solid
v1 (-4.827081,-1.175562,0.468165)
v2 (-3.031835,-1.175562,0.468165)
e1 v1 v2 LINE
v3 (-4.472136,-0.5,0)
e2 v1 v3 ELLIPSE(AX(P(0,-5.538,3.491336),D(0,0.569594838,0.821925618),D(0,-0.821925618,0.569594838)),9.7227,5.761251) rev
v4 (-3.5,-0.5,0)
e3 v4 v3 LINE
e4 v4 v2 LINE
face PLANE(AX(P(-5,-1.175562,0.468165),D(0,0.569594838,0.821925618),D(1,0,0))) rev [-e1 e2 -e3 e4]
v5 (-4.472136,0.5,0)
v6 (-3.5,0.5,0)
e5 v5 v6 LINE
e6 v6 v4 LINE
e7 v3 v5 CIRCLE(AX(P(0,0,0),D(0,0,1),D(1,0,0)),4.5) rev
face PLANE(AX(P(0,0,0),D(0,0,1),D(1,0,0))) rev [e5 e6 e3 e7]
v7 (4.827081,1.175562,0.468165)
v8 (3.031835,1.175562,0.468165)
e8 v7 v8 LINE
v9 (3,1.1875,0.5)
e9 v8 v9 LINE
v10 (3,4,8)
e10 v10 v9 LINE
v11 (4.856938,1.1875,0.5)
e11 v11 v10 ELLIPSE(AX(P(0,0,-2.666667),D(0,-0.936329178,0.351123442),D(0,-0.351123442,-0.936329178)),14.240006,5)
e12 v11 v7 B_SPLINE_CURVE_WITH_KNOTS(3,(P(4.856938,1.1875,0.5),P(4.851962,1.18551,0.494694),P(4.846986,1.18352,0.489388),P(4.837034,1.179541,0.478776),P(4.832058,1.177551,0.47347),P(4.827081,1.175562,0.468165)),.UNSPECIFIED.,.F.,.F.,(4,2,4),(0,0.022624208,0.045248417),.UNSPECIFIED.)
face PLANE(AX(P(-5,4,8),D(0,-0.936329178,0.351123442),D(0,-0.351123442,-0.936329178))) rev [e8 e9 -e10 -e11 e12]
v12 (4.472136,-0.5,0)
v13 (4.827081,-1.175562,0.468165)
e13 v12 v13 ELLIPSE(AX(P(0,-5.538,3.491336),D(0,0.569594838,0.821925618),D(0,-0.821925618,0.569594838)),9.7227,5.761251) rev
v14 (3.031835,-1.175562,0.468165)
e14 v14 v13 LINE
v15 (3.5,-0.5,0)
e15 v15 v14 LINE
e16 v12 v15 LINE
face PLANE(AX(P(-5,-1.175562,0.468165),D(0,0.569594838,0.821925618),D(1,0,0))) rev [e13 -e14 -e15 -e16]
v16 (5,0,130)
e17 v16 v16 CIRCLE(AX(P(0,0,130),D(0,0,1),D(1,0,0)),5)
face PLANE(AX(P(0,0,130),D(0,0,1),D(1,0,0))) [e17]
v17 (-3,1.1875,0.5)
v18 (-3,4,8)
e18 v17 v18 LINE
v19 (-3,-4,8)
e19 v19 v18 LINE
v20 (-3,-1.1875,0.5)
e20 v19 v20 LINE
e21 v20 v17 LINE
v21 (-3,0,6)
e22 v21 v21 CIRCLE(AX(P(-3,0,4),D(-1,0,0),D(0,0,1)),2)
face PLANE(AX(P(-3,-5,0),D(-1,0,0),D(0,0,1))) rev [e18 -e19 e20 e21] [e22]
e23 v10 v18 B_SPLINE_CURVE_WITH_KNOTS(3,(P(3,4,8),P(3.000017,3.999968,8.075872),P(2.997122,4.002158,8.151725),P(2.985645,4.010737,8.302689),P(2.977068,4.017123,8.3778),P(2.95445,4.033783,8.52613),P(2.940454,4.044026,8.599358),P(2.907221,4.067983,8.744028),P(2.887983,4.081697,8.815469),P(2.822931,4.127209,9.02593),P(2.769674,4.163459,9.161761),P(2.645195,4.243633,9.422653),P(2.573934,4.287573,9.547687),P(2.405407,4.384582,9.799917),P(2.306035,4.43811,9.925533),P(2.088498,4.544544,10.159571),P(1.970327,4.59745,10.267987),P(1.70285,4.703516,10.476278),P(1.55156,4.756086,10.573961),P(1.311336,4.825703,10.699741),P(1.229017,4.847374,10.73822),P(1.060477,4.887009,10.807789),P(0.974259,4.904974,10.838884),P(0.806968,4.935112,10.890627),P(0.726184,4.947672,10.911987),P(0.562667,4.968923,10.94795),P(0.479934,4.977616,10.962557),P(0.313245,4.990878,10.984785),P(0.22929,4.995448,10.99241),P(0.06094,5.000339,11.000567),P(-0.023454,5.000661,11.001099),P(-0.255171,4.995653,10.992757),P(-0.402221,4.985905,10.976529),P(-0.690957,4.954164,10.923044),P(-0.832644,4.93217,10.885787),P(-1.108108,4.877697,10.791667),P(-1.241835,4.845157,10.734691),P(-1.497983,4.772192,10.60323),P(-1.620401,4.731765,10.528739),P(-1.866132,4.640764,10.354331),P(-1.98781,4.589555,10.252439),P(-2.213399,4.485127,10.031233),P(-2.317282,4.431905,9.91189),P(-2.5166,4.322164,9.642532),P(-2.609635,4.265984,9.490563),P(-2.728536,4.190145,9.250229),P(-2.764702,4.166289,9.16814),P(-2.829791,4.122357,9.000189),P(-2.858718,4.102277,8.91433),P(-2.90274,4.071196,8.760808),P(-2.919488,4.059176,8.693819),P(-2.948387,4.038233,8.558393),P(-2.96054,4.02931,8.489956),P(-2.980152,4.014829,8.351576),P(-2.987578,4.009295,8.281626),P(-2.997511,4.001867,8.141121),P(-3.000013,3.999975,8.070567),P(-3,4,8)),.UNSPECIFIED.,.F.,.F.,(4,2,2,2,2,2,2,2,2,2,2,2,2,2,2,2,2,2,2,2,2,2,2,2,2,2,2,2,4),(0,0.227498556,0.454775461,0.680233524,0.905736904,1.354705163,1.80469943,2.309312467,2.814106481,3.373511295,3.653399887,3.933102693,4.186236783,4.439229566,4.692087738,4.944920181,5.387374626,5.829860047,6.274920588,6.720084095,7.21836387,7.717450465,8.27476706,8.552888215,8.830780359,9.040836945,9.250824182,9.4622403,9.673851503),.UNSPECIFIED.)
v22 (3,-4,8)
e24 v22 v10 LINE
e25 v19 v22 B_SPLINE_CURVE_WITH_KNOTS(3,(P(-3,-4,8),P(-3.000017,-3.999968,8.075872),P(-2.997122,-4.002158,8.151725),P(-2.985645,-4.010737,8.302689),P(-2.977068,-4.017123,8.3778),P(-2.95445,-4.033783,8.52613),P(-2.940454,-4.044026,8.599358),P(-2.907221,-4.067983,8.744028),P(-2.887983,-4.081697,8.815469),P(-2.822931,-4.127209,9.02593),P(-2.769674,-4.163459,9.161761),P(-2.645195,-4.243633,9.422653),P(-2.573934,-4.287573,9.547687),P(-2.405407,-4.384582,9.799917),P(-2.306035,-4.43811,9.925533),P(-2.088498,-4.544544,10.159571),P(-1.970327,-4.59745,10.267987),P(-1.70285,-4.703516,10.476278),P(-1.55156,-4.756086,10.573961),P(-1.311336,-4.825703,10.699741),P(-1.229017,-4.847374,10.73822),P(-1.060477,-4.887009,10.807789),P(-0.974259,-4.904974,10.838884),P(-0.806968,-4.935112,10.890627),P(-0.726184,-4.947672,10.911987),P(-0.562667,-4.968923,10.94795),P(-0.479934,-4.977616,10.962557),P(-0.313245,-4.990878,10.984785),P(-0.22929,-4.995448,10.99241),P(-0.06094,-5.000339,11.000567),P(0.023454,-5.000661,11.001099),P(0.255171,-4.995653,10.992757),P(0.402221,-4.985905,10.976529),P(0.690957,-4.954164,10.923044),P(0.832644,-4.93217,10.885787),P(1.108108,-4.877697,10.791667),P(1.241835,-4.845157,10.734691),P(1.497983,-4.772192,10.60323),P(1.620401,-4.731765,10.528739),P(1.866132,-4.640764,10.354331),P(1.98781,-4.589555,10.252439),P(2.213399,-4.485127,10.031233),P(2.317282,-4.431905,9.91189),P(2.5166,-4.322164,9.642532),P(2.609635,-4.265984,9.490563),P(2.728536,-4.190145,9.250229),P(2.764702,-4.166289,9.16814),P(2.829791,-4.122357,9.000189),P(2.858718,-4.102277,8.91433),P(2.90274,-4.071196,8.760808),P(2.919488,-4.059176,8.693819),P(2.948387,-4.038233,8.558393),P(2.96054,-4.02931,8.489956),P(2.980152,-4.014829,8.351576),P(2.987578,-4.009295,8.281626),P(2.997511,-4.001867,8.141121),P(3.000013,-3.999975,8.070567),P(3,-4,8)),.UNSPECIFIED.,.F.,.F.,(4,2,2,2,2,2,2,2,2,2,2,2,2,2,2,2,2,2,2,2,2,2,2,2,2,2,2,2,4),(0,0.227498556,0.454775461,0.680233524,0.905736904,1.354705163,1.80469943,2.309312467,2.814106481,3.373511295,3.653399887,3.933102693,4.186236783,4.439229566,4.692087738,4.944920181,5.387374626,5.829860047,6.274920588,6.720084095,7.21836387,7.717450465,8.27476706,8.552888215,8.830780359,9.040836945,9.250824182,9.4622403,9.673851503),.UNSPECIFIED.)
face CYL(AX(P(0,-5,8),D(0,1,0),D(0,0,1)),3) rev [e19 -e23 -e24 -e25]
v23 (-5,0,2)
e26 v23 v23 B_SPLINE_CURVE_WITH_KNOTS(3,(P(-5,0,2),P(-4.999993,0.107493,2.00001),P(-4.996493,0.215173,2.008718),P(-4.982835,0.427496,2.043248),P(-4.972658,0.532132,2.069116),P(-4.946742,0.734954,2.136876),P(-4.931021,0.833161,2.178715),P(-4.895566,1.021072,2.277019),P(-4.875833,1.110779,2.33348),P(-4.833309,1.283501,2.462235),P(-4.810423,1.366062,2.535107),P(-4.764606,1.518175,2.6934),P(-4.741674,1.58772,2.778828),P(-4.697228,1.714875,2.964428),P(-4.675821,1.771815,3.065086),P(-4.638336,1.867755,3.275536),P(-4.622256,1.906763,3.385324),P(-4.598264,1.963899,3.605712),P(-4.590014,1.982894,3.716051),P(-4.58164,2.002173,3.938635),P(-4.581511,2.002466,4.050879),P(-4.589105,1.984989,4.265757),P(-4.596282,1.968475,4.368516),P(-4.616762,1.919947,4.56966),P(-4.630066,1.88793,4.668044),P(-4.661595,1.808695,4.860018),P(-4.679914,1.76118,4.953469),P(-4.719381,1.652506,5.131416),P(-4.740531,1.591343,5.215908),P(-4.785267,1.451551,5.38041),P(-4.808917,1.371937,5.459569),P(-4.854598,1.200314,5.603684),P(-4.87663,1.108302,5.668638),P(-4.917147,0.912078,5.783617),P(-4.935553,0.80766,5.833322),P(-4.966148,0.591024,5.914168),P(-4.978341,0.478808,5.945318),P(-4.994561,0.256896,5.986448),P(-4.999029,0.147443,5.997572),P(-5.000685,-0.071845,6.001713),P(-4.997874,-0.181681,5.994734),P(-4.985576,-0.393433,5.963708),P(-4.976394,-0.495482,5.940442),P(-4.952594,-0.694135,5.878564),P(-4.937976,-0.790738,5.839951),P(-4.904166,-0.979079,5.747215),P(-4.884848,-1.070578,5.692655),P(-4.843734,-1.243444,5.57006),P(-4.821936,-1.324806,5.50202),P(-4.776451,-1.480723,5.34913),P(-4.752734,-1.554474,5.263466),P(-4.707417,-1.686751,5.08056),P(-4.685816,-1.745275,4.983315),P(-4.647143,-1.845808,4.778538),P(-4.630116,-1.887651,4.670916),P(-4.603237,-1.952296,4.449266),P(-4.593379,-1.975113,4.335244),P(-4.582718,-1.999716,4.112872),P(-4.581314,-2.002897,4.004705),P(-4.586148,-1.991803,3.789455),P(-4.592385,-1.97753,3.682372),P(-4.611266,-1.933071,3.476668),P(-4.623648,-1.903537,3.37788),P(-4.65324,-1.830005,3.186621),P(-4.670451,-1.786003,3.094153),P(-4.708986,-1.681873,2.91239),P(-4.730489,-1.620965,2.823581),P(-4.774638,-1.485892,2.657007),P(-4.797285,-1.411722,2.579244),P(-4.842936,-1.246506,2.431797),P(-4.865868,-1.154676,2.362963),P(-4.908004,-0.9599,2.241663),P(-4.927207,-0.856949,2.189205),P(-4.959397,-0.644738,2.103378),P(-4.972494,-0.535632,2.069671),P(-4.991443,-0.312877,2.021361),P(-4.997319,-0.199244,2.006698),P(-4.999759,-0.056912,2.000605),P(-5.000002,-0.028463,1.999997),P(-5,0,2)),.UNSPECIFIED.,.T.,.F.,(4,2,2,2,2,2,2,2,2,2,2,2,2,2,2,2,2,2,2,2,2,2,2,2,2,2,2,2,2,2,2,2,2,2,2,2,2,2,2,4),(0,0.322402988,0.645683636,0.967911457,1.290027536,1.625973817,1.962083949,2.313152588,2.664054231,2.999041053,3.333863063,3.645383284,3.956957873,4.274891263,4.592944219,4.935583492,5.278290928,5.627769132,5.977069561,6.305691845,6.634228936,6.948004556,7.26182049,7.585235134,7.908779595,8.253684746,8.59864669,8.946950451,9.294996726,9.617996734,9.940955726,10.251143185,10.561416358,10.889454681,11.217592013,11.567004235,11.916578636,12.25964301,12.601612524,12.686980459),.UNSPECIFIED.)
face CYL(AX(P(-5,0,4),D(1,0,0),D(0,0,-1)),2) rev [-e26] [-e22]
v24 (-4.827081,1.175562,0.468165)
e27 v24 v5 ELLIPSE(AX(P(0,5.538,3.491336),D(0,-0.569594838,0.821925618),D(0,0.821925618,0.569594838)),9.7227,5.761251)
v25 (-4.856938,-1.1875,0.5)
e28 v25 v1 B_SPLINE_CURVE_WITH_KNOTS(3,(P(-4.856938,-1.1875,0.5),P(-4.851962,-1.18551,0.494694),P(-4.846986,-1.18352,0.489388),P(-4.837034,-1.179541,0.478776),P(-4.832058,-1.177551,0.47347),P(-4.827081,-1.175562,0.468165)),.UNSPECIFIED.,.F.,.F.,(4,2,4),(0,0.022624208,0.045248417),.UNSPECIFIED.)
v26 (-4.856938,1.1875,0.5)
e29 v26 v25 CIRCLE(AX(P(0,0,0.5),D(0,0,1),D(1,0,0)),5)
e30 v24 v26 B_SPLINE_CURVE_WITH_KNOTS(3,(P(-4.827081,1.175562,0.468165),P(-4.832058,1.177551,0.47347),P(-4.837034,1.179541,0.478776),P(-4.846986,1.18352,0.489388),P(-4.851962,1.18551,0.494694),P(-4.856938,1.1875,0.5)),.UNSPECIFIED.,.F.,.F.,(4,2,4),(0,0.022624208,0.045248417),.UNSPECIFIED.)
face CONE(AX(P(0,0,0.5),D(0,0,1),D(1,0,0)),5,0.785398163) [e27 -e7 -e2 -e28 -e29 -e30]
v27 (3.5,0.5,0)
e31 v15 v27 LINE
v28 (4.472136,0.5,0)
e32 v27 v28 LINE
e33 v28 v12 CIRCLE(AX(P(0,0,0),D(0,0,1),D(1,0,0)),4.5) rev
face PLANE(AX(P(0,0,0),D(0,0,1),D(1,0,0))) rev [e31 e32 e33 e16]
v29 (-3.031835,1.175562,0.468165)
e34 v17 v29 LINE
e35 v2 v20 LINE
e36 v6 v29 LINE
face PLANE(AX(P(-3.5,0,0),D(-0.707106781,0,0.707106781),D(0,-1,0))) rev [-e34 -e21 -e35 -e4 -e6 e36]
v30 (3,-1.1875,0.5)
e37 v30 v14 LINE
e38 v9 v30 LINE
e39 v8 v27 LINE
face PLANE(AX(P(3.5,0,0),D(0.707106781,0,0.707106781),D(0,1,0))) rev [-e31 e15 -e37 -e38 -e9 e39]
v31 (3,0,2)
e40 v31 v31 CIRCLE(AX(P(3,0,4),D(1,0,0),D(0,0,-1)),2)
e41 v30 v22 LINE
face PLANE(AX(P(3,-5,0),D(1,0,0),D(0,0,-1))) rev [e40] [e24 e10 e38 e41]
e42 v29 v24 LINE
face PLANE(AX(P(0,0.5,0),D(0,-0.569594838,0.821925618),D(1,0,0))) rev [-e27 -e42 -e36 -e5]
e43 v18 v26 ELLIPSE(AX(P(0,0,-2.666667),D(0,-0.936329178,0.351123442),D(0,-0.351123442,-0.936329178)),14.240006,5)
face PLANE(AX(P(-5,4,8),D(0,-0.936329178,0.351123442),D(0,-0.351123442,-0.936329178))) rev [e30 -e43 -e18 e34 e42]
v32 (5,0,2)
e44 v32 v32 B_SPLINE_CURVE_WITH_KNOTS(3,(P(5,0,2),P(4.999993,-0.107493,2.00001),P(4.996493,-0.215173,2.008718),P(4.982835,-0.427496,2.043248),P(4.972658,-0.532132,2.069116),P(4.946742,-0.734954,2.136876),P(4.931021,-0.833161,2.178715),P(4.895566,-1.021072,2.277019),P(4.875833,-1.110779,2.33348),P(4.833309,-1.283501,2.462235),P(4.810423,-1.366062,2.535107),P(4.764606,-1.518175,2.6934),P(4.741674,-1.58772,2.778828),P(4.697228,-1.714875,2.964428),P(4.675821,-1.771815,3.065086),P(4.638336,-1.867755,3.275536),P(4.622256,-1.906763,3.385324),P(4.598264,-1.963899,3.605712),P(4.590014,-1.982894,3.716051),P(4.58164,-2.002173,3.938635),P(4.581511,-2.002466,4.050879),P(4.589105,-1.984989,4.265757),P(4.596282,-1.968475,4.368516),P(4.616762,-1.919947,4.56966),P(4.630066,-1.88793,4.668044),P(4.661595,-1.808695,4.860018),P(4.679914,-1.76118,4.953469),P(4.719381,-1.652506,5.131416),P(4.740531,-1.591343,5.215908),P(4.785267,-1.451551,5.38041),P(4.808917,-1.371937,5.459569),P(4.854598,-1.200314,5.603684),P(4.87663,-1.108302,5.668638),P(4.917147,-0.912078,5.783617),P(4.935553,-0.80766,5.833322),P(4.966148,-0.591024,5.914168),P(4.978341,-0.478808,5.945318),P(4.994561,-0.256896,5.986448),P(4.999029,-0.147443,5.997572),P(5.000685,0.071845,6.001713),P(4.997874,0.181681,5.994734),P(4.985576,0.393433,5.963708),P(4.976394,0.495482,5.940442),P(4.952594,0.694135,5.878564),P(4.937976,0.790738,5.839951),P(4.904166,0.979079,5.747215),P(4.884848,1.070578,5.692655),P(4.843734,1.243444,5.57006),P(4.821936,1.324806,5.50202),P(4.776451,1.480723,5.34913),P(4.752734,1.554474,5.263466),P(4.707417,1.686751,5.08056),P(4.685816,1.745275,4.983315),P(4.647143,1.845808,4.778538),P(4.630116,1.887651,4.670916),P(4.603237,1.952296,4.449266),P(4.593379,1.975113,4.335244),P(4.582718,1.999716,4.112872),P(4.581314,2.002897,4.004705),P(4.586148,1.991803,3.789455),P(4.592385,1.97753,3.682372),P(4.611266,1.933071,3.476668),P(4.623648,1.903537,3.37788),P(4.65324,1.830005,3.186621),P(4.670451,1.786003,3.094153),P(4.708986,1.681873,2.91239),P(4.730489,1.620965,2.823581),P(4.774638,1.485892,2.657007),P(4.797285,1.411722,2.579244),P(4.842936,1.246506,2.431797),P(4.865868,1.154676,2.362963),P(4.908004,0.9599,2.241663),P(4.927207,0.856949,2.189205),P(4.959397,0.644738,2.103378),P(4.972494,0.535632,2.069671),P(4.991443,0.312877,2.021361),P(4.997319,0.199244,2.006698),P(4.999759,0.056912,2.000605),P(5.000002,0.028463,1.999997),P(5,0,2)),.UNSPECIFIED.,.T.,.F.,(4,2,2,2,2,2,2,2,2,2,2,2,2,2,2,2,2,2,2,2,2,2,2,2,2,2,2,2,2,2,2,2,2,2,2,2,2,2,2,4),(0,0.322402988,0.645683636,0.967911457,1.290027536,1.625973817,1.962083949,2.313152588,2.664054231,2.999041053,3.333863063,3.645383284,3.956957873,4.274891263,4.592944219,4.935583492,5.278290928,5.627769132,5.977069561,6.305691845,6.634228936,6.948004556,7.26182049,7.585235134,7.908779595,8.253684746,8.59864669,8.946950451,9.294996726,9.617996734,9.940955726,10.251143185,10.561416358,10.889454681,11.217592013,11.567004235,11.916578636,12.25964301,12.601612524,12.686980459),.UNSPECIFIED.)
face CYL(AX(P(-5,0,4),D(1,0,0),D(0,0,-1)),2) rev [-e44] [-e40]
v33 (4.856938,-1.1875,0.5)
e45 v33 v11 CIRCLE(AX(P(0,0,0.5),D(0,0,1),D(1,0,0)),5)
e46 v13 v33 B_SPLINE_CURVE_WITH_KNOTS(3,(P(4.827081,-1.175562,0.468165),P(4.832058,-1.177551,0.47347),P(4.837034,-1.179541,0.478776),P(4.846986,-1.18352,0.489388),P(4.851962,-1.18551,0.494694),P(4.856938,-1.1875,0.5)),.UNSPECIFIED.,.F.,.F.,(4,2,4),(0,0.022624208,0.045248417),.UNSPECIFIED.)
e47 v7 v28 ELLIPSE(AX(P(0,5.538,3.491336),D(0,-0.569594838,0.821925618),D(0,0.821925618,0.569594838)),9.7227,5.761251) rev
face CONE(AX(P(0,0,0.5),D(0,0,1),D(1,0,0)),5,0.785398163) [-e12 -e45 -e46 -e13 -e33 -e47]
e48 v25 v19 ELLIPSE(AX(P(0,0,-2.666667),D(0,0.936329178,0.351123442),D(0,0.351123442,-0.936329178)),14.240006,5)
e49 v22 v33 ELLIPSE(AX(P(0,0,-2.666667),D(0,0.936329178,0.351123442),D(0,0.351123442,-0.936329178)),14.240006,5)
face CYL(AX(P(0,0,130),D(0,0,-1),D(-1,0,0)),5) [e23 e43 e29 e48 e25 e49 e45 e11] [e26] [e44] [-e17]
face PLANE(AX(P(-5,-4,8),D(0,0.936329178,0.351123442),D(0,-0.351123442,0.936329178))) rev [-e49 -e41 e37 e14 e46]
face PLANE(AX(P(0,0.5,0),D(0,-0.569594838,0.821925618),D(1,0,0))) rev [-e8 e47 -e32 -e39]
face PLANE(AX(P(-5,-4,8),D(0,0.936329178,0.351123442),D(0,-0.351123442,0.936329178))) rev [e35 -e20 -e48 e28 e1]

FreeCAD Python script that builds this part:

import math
import FreeCAD as App
import Part
import Sketcher

V = App.Vector
Q = App.Units.Quantity


def edges_at(feature, points):
    """Names of the edges that pass closest to the given points."""
    edges = feature.Shape.Edges
    near = lambda p: min(range(len(edges)), key=lambda i: edges[i].distToShape(Part.Vertex(*p))[0])
    return sorted({f"Edge{near(p) + 1}" for p in points})

doc = App.newDocument("Part")
body = doc.addObject("PartDesign::Body", "Body")

# Sketch on XY plane
sketch1 = body.newObject("Sketcher::SketchObject", "Sketch")
sketch1.AttachmentSupport = (doc.getObject("XY_Plane"), [""])
sketch1.MapMode = "FlatFace"
sketch1.addGeometry(Part.Circle(V(0, 0, 0), V(0, 0, 1), 5), False)
sketch1.addConstraint(Sketcher.Constraint("Coincident", 0, 3, -1, 1))
sketch1.addConstraint(Sketcher.Constraint("Diameter", 0, Q("10 mm")))
pad1 = body.newObject("PartDesign::Pad", "Pad")
pad1.Profile = sketch1
pad1.Length = 130

# Sketch on XZ plane
sketch2 = body.newObject("Sketcher::SketchObject", "Sketch001")
sketch2.AttachmentSupport = (doc.getObject("XZ_Plane"), [""])
sketch2.MapMode = "FlatFace"
sketch2.AttachmentOffset = App.Placement(V(0, 0, -5), App.Rotation())
sketch2.addGeometry(Part.LineSegment(V(3, 0, 0), V(-3, 0, 0)), False)
sketch2.addGeometry(Part.LineSegment(V(-3, 0, 0), V(-3, 8, 0)), False)
sketch2.addGeometry(Part.ArcOfCircle(Part.Circle(V(0, 8, 0), V(0, 0, 1), 3), math.radians(0), math.radians(180)), False)
sketch2.addGeometry(Part.LineSegment(V(3, 8, 0), V(3, 0, 0)), False)
sketch2.addConstraint(Sketcher.Constraint("Coincident", 0, 2, 1, 1))
sketch2.addConstraint(Sketcher.Constraint("Tangent", 1, 2, 2, 2))
sketch2.addConstraint(Sketcher.Constraint("Tangent", 2, 1, 3, 1))
sketch2.addConstraint(Sketcher.Constraint("Coincident", 3, 2, 0, 1))
sketch2.addConstraint(Sketcher.Constraint("Horizontal", 0))
sketch2.addConstraint(Sketcher.Constraint("Vertical", 1))
sketch2.addConstraint(Sketcher.Constraint("Vertical", 3))
sketch2.addConstraint(Sketcher.Constraint("Symmetric", 0, 2, 3, 2, -1, 1))
sketch2.addConstraint(Sketcher.Constraint("Radius", 2, Q("3 mm")))
sketch2.addConstraint(Sketcher.Constraint("DistanceY", 1, 1, 1, 2, Q("8 mm")))
pocket1 = body.newObject("PartDesign::Pocket", "Pocket")
pocket1.Profile = sketch2
pocket1.Type = "ThroughAll"
pocket1.Reversed = True

# Sketch on YZ plane
sketch3 = body.newObject("Sketcher::SketchObject", "Sketch002")
sketch3.AttachmentSupport = (doc.getObject("YZ_Plane"), [""])
sketch3.MapMode = "FlatFace"
sketch3.AttachmentOffset = App.Placement(V(0, 0, 5), App.Rotation())
sketch3.addGeometry(Part.Circle(V(0, 4, 0), V(0, 0, 1), 2), False)
sketch3.addGeometry(Part.LineSegment(V(-1, 0, 0), V(-4, 8, 0)), False)
sketch3.addGeometry(Part.LineSegment(V(-4, 8, 0), V(-4, 0, 0)), False)
sketch3.addGeometry(Part.LineSegment(V(-4, 0, 0), V(-1, 0, 0)), False)
sketch3.addGeometry(Part.LineSegment(V(1, 0, 0), V(4, 0, 0)), False)
sketch3.addGeometry(Part.LineSegment(V(4, 0, 0), V(4, 8, 0)), False)
sketch3.addGeometry(Part.LineSegment(V(4, 8, 0), V(1, 0, 0)), False)
sketch3.addConstraint(Sketcher.Constraint("Coincident", 1, 2, 2, 1))
sketch3.addConstraint(Sketcher.Constraint("Coincident", 2, 2, 3, 1))
sketch3.addConstraint(Sketcher.Constraint("Coincident", 3, 2, 1, 1))
sketch3.addConstraint(Sketcher.Constraint("Coincident", 4, 2, 5, 1))
sketch3.addConstraint(Sketcher.Constraint("Coincident", 5, 2, 6, 1))
sketch3.addConstraint(Sketcher.Constraint("Coincident", 6, 2, 4, 1))
sketch3.addConstraint(Sketcher.Constraint("Vertical", 2))
sketch3.addConstraint(Sketcher.Constraint("Horizontal", 3))
sketch3.addConstraint(Sketcher.Constraint("Horizontal", 4))
sketch3.addConstraint(Sketcher.Constraint("Vertical", 5))
sketch3.addConstraint(Sketcher.Constraint("Symmetric", 2, 2, 4, 2, -1, 1))
sketch3.addConstraint(Sketcher.Constraint("Symmetric", 3, 2, 6, 2, -2))
sketch3.addConstraint(Sketcher.Constraint("PointOnObject", 0, 3, -2))
sketch3.addConstraint(Sketcher.Constraint("Horizontal", 1, 2, 5, 2))
sketch3.addConstraint(Sketcher.Constraint("Diameter", 0, Q("4 mm")))
sketch3.addConstraint(Sketcher.Constraint("DistanceX", 3, 1, 3, 2, Q("3 mm")))
sketch3.addConstraint(Sketcher.Constraint("DistanceY", 2, 2, 2, 1, Q("8 mm")))
sketch3.addConstraint(Sketcher.Constraint("DistanceY", -1, 1, 0, 3, Q("4 mm")))
sketch3.addConstraint(Sketcher.Constraint("DistanceX", 1, 2, -1, 1, Q("4 mm")))
pocket2 = body.newObject("PartDesign::Pocket", "Pocket001")
pocket2.Profile = sketch3
pocket2.Type = "ThroughAll"
doc.recompute()

chamfer = body.newObject("PartDesign::Chamfer", "Chamfer")
chamfer.Base = (pocket2, edges_at(pocket2, [
    (-3.949, -1, 0),
    (-5, 0, 0),
    (4.975, -0.503, 0),
    (-3.949, 1, 0),
    (-3, 0, 0),
    (3, 0, 0),
    (3.949, -1, 0),
    (3.949, 1, 0),
]))
chamfer.Size = 0.5

doc.recompute()
